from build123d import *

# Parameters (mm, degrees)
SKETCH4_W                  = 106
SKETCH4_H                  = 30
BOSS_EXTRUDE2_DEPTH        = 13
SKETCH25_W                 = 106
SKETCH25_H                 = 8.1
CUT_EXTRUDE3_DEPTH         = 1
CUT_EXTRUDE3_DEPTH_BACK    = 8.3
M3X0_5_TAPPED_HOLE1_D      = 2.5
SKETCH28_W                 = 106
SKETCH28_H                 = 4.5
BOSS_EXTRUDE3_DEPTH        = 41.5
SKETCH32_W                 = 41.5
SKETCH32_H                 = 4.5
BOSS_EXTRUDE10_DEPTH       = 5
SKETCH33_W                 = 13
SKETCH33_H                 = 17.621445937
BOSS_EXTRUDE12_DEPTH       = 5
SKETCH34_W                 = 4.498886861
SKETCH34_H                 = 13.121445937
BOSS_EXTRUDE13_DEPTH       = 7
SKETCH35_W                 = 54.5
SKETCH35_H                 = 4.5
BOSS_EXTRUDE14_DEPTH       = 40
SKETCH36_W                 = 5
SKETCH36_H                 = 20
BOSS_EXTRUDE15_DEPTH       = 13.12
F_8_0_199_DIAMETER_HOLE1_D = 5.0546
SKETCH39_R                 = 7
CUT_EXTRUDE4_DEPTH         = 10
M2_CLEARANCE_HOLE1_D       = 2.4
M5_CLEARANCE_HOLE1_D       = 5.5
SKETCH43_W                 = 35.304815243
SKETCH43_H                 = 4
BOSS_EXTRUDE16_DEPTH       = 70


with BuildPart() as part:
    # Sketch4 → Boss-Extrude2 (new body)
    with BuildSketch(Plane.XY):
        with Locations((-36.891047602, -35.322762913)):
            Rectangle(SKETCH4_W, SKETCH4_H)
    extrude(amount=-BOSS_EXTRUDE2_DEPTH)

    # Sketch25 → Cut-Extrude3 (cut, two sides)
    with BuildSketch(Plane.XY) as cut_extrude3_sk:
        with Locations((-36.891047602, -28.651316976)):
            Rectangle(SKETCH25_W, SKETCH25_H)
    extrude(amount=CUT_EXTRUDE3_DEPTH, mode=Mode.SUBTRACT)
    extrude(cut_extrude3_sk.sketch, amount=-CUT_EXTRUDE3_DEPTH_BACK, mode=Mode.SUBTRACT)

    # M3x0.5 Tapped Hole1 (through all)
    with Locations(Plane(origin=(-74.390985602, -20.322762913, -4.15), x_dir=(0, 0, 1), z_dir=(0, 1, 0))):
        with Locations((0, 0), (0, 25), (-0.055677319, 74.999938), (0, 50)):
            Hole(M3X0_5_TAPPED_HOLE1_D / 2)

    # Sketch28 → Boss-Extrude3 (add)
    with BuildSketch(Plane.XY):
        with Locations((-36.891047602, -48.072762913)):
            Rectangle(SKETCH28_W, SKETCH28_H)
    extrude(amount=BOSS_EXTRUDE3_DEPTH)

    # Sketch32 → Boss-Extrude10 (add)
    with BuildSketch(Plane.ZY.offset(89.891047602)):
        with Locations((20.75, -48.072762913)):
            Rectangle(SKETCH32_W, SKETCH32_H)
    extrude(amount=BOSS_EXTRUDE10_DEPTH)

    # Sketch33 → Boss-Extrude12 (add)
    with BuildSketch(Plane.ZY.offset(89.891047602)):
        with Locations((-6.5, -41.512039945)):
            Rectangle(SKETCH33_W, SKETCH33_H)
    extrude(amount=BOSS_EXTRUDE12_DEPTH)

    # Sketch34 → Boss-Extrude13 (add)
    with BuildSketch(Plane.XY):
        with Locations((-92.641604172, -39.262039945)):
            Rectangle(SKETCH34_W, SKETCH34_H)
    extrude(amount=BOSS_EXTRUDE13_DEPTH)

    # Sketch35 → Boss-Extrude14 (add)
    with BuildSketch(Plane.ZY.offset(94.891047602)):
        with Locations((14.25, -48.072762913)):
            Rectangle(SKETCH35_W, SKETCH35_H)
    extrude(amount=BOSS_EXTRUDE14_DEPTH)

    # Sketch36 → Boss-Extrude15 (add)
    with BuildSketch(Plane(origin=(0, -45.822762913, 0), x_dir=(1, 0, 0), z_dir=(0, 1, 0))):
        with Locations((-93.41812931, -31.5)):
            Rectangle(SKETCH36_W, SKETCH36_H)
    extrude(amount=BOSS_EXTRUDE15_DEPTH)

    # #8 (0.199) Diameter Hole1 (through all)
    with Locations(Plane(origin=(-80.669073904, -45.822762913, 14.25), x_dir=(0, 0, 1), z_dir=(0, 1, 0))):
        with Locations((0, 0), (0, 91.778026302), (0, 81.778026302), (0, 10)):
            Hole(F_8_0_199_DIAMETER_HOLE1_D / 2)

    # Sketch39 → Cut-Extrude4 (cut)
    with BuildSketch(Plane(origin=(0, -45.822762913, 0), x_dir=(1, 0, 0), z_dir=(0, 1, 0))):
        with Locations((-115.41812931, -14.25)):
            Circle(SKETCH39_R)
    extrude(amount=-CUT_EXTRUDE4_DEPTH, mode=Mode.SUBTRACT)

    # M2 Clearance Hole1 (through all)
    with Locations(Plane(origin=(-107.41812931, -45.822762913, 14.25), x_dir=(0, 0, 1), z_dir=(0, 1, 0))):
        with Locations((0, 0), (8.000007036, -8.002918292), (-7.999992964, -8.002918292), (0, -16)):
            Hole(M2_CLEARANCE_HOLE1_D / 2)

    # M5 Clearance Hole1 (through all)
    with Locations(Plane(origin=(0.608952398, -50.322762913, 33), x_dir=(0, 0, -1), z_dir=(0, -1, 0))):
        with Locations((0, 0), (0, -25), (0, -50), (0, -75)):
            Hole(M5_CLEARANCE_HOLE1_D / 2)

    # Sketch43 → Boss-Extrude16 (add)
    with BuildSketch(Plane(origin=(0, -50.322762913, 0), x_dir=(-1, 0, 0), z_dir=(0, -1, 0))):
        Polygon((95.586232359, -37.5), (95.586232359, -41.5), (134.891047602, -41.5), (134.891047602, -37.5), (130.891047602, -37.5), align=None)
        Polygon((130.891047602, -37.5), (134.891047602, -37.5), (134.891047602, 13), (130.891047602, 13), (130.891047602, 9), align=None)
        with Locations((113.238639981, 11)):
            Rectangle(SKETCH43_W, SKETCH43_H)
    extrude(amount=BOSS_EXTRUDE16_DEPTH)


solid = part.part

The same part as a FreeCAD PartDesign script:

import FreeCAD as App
import Part
import Sketcher
from FreeCAD import Vector


def add_polygon(sketch, points):
    """Adds a closed chain of lines whose ends are joined by coincident constraints."""
    first, n = sketch.GeometryCount, len(points)
    for a, b in zip(points, points[1:] + points[:1]):
        sketch.addGeometry(Part.LineSegment(App.Vector(*a, 0), App.Vector(*b, 0)), False)
    for i in range(n):
        sketch.addConstraint(Sketcher.Constraint("Coincident", first + i, 2, first + (i + 1) % n, 1))

doc = App.newDocument("Part")
body = doc.addObject("PartDesign::Body", "Body")

sketch1 = body.newObject("Sketcher::SketchObject", "Sketch")
sketch1.AttachmentSupport = (doc.getObject("XY_Plane"), [""])
sketch1.MapMode = "FlatFace"
add_polygon(sketch1, [(-90, -20), (-90, -50), (16, -50), (16, -20)])
sketch1.addConstraint(Sketcher.Constraint("Vertical", 0))
sketch1.addConstraint(Sketcher.Constraint("Horizontal", 1))
sketch1.addConstraint(Sketcher.Constraint("Vertical", 2))
sketch1.addConstraint(Sketcher.Constraint("Horizontal", 3))
sketch1.addConstraint(Sketcher.Constraint("DistanceX", 1, 1, 1, 2, 106.0))
sketch1.addConstraint(Sketcher.Constraint("DistanceY", 0, 2, 0, 1, 30.0))
sketch1.addConstraint(Sketcher.Constraint("DistanceX", 0, 2, -1, 1, 89.891048))
sketch1.addConstraint(Sketcher.Constraint("DistanceY", 0, 2, -1, 1, 50.322763))
pad1 = body.newObject("PartDesign::Pad", "Pad")
pad1.Profile = sketch1
pad1.Length = 13
pad1.Reversed = True

sketch2 = body.newObject("Sketcher::SketchObject", "Sketch001")
sketch2.AttachmentSupport = (doc.getObject("XY_Plane"), [""])
sketch2.MapMode = "FlatFace"
add_polygon(sketch2, [(-90, -25), (-90, -33), (16, -33), (16, -25)])
sketch2.addConstraint(Sketcher.Constraint("Vertical", 0))
sketch2.addConstraint(Sketcher.Constraint("Horizontal", 1))
sketch2.addConstraint(Sketcher.Constraint("Vertical", 2))
sketch2.addConstraint(Sketcher.Constraint("Horizontal", 3))
sketch2.addConstraint(Sketcher.Constraint("DistanceX", 1, 1, 1, 2, 106.0))
sketch2.addConstraint(Sketcher.Constraint("DistanceY", 0, 2, 0, 1, 8.1))
sketch2.addConstraint(Sketcher.Constraint("DistanceX", 0, 2, -1, 1, 89.891048))
sketch2.addConstraint(Sketcher.Constraint("DistanceY", 0, 2, -1, 1, 32.701317))
pocket1 = body.newObject("PartDesign::Pocket", "Pocket")
pocket1.Profile = sketch2
pocket1.Type = "TwoLengths"
pocket1.Length = 1
pocket1.Length2 = 8.3
pocket1.Reversed = True

sketch3 = body.newObject("Sketcher::SketchObject", "Sketch002")
sketch3.AttachmentSupport = (doc.getObject("XZ_Plane"), [""])
sketch3.MapMode = "FlatFace"
sketch3.AttachmentOffset = App.Placement(Vector(0, 0, 20.322763), App.Rotation())
sketch3.addGeometry(Part.Circle(Vector(-74.4, -4.2, 0), Vector(0, 0, 1), 1.2), False)
sketch3.addGeometry(Part.Circle(Vector(-49.4, -4.2, 0), Vector(0, 0, 1), 1.2), False)
sketch3.addGeometry(Part.Circle(Vector(0.6, -4.2, 0), Vector(0, 0, 1), 1.2), False)
sketch3.addGeometry(Part.Circle(Vector(-24.4, -4.2, 0), Vector(0, 0, 1), 1.2), False)
sketch3.addConstraint(Sketcher.Constraint("Equal", 0, 1))
sketch3.addConstraint(Sketcher.Constraint("Equal", 1, 2))
sketch3.addConstraint(Sketcher.Constraint("Equal", 2, 3))
sketch3.addConstraint(Sketcher.Constraint("Horizontal", 0, 3, 1, 3))
sketch3.addConstraint(Sketcher.Constraint("Horizontal", 1, 3, 3, 3))
sketch3.addConstraint(Sketcher.Constraint("Diameter", 0, 2.5))
sketch3.addConstraint(Sketcher.Constraint("DistanceX", 0, 3, 1, 3, 25.0))
sketch3.addConstraint(Sketcher.Constraint("DistanceX", 1, 3, 3, 3, 25.0))
sketch3.addConstraint(Sketcher.Constraint("DistanceY", 0, 3, -1, 1, 4.15))
sketch3.addConstraint(Sketcher.Constraint("DistanceX", 0, 3, 2, 3, 74.999938))
sketch3.addConstraint(Sketcher.Constraint("DistanceX", 0, 3, -1, 1, 74.390986))
sketch3.addConstraint(Sketcher.Constraint("DistanceY", 2, 3, -1, 1, 4.205677))
doc.recompute()
hole = body.newObject("PartDesign::Hole", "Hole")
hole.Profile = sketch3
hole.ThreadType = "None"
hole.Diameter = 2.5
hole.DepthType = "ThroughAll"
hole.Reversed = True

sketch4 = body.newObject("Sketcher::SketchObject", "Sketch003")
sketch4.AttachmentSupport = (doc.getObject("XY_Plane"), [""])
sketch4.MapMode = "FlatFace"
add_polygon(sketch4, [(-89.9, -45.8), (-89.9, -50.3), (16.1, -50.3), (16.1, -45.8)])
sketch4.addConstraint(Sketcher.Constraint("Vertical", 0))
sketch4.addConstraint(Sketcher.Constraint("Horizontal", 1))
sketch4.addConstraint(Sketcher.Constraint("Vertical", 2))
sketch4.addConstraint(Sketcher.Constraint("Horizontal", 3))
sketch4.addConstraint(Sketcher.Constraint("DistanceX", 1, 1, 1, 2, 106.0))
sketch4.addConstraint(Sketcher.Constraint("DistanceY", 0, 2, 0, 1, 4.5))
sketch4.addConstraint(Sketcher.Constraint("DistanceX", 0, 2, -1, 1, 89.891048))
sketch4.addConstraint(Sketcher.Constraint("DistanceY", 0, 2, -1, 1, 50.322763))
pad2 = body.newObject("PartDesign::Pad", "Pad001")
pad2.Profile = sketch4
pad2.Length = 41.5

sketch5 = body.newObject("Sketcher::SketchObject", "Sketch004")
sketch5.AttachmentSupport = (doc.getObject("YZ_Plane"), [""])
sketch5.MapMode = "FlatFace"
sketch5.AttachmentOffset = App.Placement(Vector(0, 0, -89.891048), App.Rotation())
add_polygon(sketch5, [(-45.8, 0), (-50.3, 0), (-50.3, 41.5), (-45.8, 41.5)])
sketch5.addConstraint(Sketcher.Constraint("Horizontal", 0))
sketch5.addConstraint(Sketcher.Constraint("Vertical", 1))
sketch5.addConstraint(Sketcher.Constraint("Horizontal", 2))
sketch5.addConstraint(Sketcher.Constraint("Vertical", 3))
sketch5.addConstraint(Sketcher.Constraint("PointOnObject", 0, 2, -1))
sketch5.addConstraint(Sketcher.Constraint("DistanceX", 0, 2, 0, 1, 4.5))
sketch5.addConstraint(Sketcher.Constraint("DistanceY", 1, 1, 1, 2, 41.5))
sketch5.addConstraint(Sketcher.Constraint("DistanceX", 0, 2, -1, 1, 50.322763))
pad3 = body.newObject("PartDesign::Pad", "Pad002")
pad3.Profile = sketch5
pad3.Length = 5
pad3.Reversed = True

sketch6 = body.newObject("Sketcher::SketchObject", "Sketch005")
sketch6.AttachmentSupport = (doc.getObject("YZ_Plane"), [""])
sketch6.MapMode = "FlatFace"
sketch6.AttachmentOffset = App.Placement(Vector(0, 0, -89.891048), App.Rotation())
add_polygon(sketch6, [(-33, -13), (-50, -13), (-50, 0), (-33, 0)])
sketch6.addConstraint(Sketcher.Constraint("Horizontal", 0))
sketch6.addConstraint(Sketcher.Constraint("Vertical", 1))
sketch6.addConstraint(Sketcher.Constraint("Horizontal", 2))
sketch6.addConstraint(Sketcher.Constraint("Vertical", 3))
sketch6.addConstraint(Sketcher.Constraint("PointOnObject", 1, 2, -1))
sketch6.addConstraint(Sketcher.Constraint("DistanceY", 1, 1, 1, 2, 13.0))
sketch6.addConstraint(Sketcher.Constraint("DistanceX", 0, 2, 0, 1, 17.621446))
sketch6.addConstraint(Sketcher.Constraint("DistanceX", 0, 2, -1, 1, 50.322763))
pad4 = body.newObject("PartDesign::Pad", "Pad003")
pad4.Profile = sketch6
pad4.Length = 5
pad4.Reversed = True

sketch7 = body.newObject("Sketcher::SketchObject", "Sketch006")
sketch7.AttachmentSupport = (doc.getObject("XY_Plane"), [""])
sketch7.MapMode = "FlatFace"
add_polygon(sketch7, [(-94.9, -32.7), (-94.9, -45.8), (-90.4, -45.8), (-90.4, -32.7)])
sketch7.addConstraint(Sketcher.Constraint("Vertical", 0))
sketch7.addConstraint(Sketcher.Constraint("Horizontal", 1))
sketch7.addConstraint(Sketcher.Constraint("Vertical", 2))
sketch7.addConstraint(Sketcher.Constraint("Horizontal", 3))
sketch7.addConstraint(Sketcher.Constraint("DistanceX", 1, 1, 1, 2, 4.498887))
sketch7.addConstraint(Sketcher.Constraint("DistanceY", 0, 2, 0, 1, 13.121446))
sketch7.addConstraint(Sketcher.Constraint("DistanceX", 1, 2, -1, 1, 90.392161))
sketch7.addConstraint(Sketcher.Constraint("DistanceY", 0, 2, -1, 1, 45.822763))
pad5 = body.newObject("PartDesign::Pad", "Pad004")
pad5.Profile = sketch7
pad5.Length = 7

sketch8 = body.newObject("Sketcher::SketchObject", "Sketch007")
sketch8.AttachmentSupport = (doc.getObject("YZ_Plane"), [""])
sketch8.MapMode = "FlatFace"
sketch8.AttachmentOffset = App.Placement(Vector(0, 0, -94.891048), App.Rotation())
add_polygon(sketch8, [(-45.8, -13), (-50.3, -13), (-50.3, 41.5), (-45.8, 41.5)])
sketch8.addConstraint(Sketcher.Constraint("Horizontal", 0))
sketch8.addConstraint(Sketcher.Constraint("Vertical", 1))
sketch8.addConstraint(Sketcher.Constraint("Horizontal", 2))
sketch8.addConstraint(Sketcher.Constraint("Vertical", 3))
sketch8.addConstraint(Sketcher.Constraint("DistanceX", 0, 2, 0, 1, 4.5))
sketch8.addConstraint(Sketcher.Constraint("DistanceY", 1, 1, 1, 2, 54.5))
sketch8.addConstraint(Sketcher.Constraint("DistanceY", 0, 2, -1, 1, 13.0))
sketch8.addConstraint(Sketcher.Constraint("DistanceX", 0, 2, -1, 1, 50.322763))
pad6 = body.newObject("PartDesign::Pad", "Pad005")
pad6.Profile = sketch8
pad6.Length = 40
pad6.Reversed = True

sketch9 = body.newObject("Sketcher::SketchObject", "Sketch008")
sketch9.AttachmentSupport = (doc.getObject("XZ_Plane"), [""])
sketch9.MapMode = "FlatFace"
sketch9.AttachmentOffset = App.Placement(Vector(0, 0, 45.822763), App.Rotation())
add_polygon(sketch9, [(-96, 22), (-96, 42), (-91, 42), (-91, 22)])
sketch9.addConstraint(Sketcher.Constraint("Vertical", 0))
sketch9.addConstraint(Sketcher.Constraint("Horizontal", 1))
sketch9.addConstraint(Sketcher.Constraint("Vertical", 2))
sketch9.addConstraint(Sketcher.Constraint("Horizontal", 3))
sketch9.addConstraint(Sketcher.Constraint("DistanceX", 1, 1, 1, 2, 5.0))
sketch9.addConstraint(Sketcher.Constraint("DistanceY", 0, 1, 0, 2, 20.0))
sketch9.addConstraint(Sketcher.Constraint("DistanceY", -1, 1, 0, 2, 41.5))
sketch9.addConstraint(Sketcher.Constraint("DistanceX", 0, 2, -1, 1, 95.918129))
pad7 = body.newObject("PartDesign::Pad", "Pad006")
pad7.Profile = sketch9
pad7.Length = 13.12
pad7.Reversed = True

sketch10 = body.newObject("Sketcher::SketchObject", "Sketch009")
sketch10.AttachmentSupport = (doc.getObject("XZ_Plane"), [""])
sketch10.MapMode = "FlatFace"
sketch10.AttachmentOffset = App.Placement(Vector(0, 0, 45.822763), App.Rotation())
sketch10.addGeometry(Part.Circle(Vector(-80.7, 14.2, 0), Vector(0, 0, 1), 2.5), False)
sketch10.addGeometry(Part.Circle(Vector(11.1, 14.2, 0), Vector(0, 0, 1), 2.5), False)
sketch10.addGeometry(Part.Circle(Vector(1.1, 14.2, 0), Vector(0, 0, 1), 2.5), False)
sketch10.addGeometry(Part.Circle(Vector(-70.7, 14.2, 0), Vector(0, 0, 1), 2.5), False)
sketch10.addConstraint(Sketcher.Constraint("Equal", 0, 1))
sketch10.addConstraint(Sketcher.Constraint("Equal", 1, 2))
sketch10.addConstraint(Sketcher.Constraint("Equal", 2, 3))
sketch10.addConstraint(Sketcher.Constraint("Horizontal", 0, 3, 1, 3))
sketch10.addConstraint(Sketcher.Constraint("Horizontal", 1, 3, 2, 3))
sketch10.addConstraint(Sketcher.Constraint("Horizontal", 2, 3, 3, 3))
sketch10.addConstraint(Sketcher.Constraint("DistanceX", 2, 3, 1, 3, 10.0))
sketch10.addConstraint(Sketcher.Constraint("DistanceX", 0, 3, 3, 3, 10.0))
sketch10.addConstraint(Sketcher.Constraint("Diameter", 0, 5.0546))
sketch10.addConstraint(Sketcher.Constraint("DistanceY", -1, 1, 0, 3, 14.25))
sketch10.addConstraint(Sketcher.Constraint("DistanceX", 0, 3, -1, 1, 80.669074))
sketch10.addConstraint(Sketcher.Constraint("DistanceX", -1, 1, 1, 3, 11.108952))
doc.recompute()
hole2 = body.newObject("PartDesign::Hole", "Hole001")
hole2.Profile = sketch10
hole2.ThreadType = "None"
hole2.Diameter = 5.0546
hole2.DepthType = "ThroughAll"
hole2.Reversed = True

sketch11 = body.newObject("Sketcher::SketchObject", "Sketch010")
sketch11.AttachmentSupport = (doc.getObject("XZ_Plane"), [""])
sketch11.MapMode = "FlatFace"
sketch11.AttachmentOffset = App.Placement(Vector(0, 0, 45.822763), App.Rotation())
sketch11.addGeometry(Part.Circle(Vector(-115, 14, 0), Vector(0, 0, 1), 7), False)
sketch11.addConstraint(Sketcher.Constraint("Diameter", 0, 14.0))
sketch11.addConstraint(Sketcher.Constraint("DistanceY", -1, 1, 0, 3, 14.25))
sketch11.addConstraint(Sketcher.Constraint("DistanceX", 0, 3, -1, 1, 115.418129))
pocket2 = body.newObject("PartDesign::Pocket", "Pocket001")
pocket2.Profile = sketch11
pocket2.Length = 10
pocket2.Reversed = True

sketch12 = body.newObject("Sketcher::SketchObject", "Sketch011")
sketch12.AttachmentSupport = (doc.getObject("XZ_Plane"), [""])
sketch12.MapMode = "FlatFace"
sketch12.AttachmentOffset = App.Placement(Vector(0, 0, 45.822763), App.Rotation())
sketch12.addGeometry(Part.Circle(Vector(-107.4, 14.2, 0), Vector(0, 0, 1), 1.2), False)
sketch12.addGeometry(Part.Circle(Vector(-115.4, 22.3, 0), Vector(0, 0, 1), 1.2), False)
sketch12.addGeometry(Part.Circle(Vector(-115.4, 6.3, 0), Vector(0, 0, 1), 1.2), False)
sketch12.addGeometry(Part.Circle(Vector(-123.4, 14.2, 0), Vector(0, 0, 1), 1.2), False)
sketch12.addConstraint(Sketcher.Constraint("Equal", 0, 1))
sketch12.addConstraint(Sketcher.Constraint("Equal", 1, 2))
sketch12.addConstraint(Sketcher.Constraint("Equal", 2, 3))
sketch12.addConstraint(Sketcher.Constraint("Horizontal", 0, 3, 3, 3))
sketch12.addConstraint(Sketcher.Constraint("Vertical", 1, 3, 2, 3))
sketch12.addConstraint(Sketcher.Constraint("Diameter", 0, 2.4))
sketch12.addConstraint(Sketcher.Constraint("DistanceY", 2, 3, 1, 3, 16.0))
sketch12.addConstraint(Sketcher.Constraint("DistanceX", 3, 3, 0, 3, 16.0))
sketch12.addConstraint(Sketcher.Constraint("DistanceY", -1, 1, 0, 3, 14.25))
sketch12.addConstraint(Sketcher.Constraint("DistanceX", 0, 3, -1, 1, 107.418129))
sketch12.addConstraint(Sketcher.Constraint("DistanceX", 1, 3, 0, 3, 8.002918))
sketch12.addConstraint(Sketcher.Constraint("DistanceY", -1, 1, 1, 3, 22.250007))
doc.recompute()
hole3 = body.newObject("PartDesign::Hole", "Hole002")
hole3.Profile = sketch12
hole3.ThreadType = "None"
hole3.Diameter = 2.4
hole3.DepthType = "ThroughAll"
hole3.Reversed = True

sketch13 = body.newObject("Sketcher::SketchObject", "Sketch012")
sketch13.AttachmentSupport = (doc.getObject("XZ_Plane"), [""])
sketch13.MapMode = "FlatFace"
sketch13.AttachmentOffset = App.Placement(Vector(0, 0, 50.322763), App.Rotation())
sketch13.addGeometry(Part.Circle(Vector(0.6, 33, 0), Vector(0, 0, 1), 2.8), False)
sketch13.addGeometry(Part.Circle(Vector(-24.4, 33, 0), Vector(0, 0, 1), 2.8), False)
sketch13.addGeometry(Part.Circle(Vector(-49.4, 33, 0), Vector(0, 0, 1), 2.8), False)
sketch13.addGeometry(Part.Circle(Vector(-74.4, 33, 0), Vector(0, 0, 1), 2.8), False)
sketch13.addConstraint(Sketcher.Constraint("Equal", 0, 1))
sketch13.addConstraint(Sketcher.Constraint("Equal", 1, 2))
sketch13.addConstraint(Sketcher.Constraint("Equal", 2, 3))
sketch13.addConstraint(Sketcher.Constraint("Horizontal", 0, 3, 1, 3))
sketch13.addConstraint(Sketcher.Constraint("Horizontal", 1, 3, 2, 3))
sketch13.addConstraint(Sketcher.Constraint("Horizontal", 2, 3, 3, 3))
sketch13.addConstraint(Sketcher.Constraint("Diameter", 0, 5.5))
sketch13.addConstraint(Sketcher.Constraint("DistanceY", -1, 1, 0, 3, 33.0))
sketch13.addConstraint(Sketcher.Constraint("DistanceX", 1, 3, 0, 3, 25.0))
sketch13.addConstraint(Sketcher.Constraint("DistanceX", 2, 3, 1, 3, 25.0))
sketch13.addConstraint(Sketcher.Constraint("DistanceX", 3, 3, 2, 3, 25.0))
sketch13.addConstraint(Sketcher.Constraint("DistanceX", -1, 1, 0, 3, 0.608952))
doc.recompute()
hole4 = body.newObject("PartDesign::Hole", "Hole003")
hole4.Profile = sketch13
hole4.ThreadType = "None"
hole4.Diameter = 5.5
hole4.DepthType = "ThroughAll"

sketch14 = body.newObject("Sketcher::SketchObject", "Sketch013")
sketch14.AttachmentSupport = (doc.getObject("XZ_Plane"), [""])
sketch14.MapMode = "FlatFace"
sketch14.AttachmentOffset = App.Placement(Vector(0, 0, 50.322763), App.Rotation())
add_polygon(sketch14, [(-95.6, 37.5), (-95.6, 41.5), (-134.9, 41.5), (-134.9, -13), (-95.6, -13), (-95.6, -9), (-130.9, -9), (-130.9, 37.5)])
sketch14.addConstraint(Sketcher.Constraint("Vertical", 0))
sketch14.addConstraint(Sketcher.Constraint("Horizontal", 1))
sketch14.addConstraint(Sketcher.Constraint("Vertical", 2))
sketch14.addConstraint(Sketcher.Constraint("Horizontal", 3))
sketch14.addConstraint(Sketcher.Constraint("Vertical", 4))
sketch14.addConstraint(Sketcher.Constraint("Horizontal", 5))
sketch14.addConstraint(Sketcher.Constraint("Vertical", 6))
sketch14.addConstraint(Sketcher.Constraint("Horizontal", 7))
sketch14.addConstraint(Sketcher.Constraint("Vertical", 0, 2, 3, 2))
sketch14.addConstraint(Sketcher.Constraint("Equal", 0, 4))
sketch14.addConstraint(Sketcher.Constraint("DistanceY", 0, 1, 0, 2, 4.0))
sketch14.addConstraint(Sketcher.Constraint("DistanceY", 2, 2, 2, 1, 54.5))
sketch14.addConstraint(Sketcher.Constraint("DistanceY", 2, 2, -1, 1, 13.0))
sketch14.addConstraint(Sketcher.Constraint("DistanceX", 2, 2, 5, 2, 4.0))
sketch14.addConstraint(Sketcher.Constraint("DistanceX", 1, 2, 1, 1, 39.304815))
sketch14.addConstraint(Sketcher.Constraint("DistanceX", 0, 2, -1, 1, 95.586232))
pad8 = body.newObject("PartDesign::Pad", "Pad007")
pad8.Profile = sketch14
pad8.Length = 70

doc.recompute()
